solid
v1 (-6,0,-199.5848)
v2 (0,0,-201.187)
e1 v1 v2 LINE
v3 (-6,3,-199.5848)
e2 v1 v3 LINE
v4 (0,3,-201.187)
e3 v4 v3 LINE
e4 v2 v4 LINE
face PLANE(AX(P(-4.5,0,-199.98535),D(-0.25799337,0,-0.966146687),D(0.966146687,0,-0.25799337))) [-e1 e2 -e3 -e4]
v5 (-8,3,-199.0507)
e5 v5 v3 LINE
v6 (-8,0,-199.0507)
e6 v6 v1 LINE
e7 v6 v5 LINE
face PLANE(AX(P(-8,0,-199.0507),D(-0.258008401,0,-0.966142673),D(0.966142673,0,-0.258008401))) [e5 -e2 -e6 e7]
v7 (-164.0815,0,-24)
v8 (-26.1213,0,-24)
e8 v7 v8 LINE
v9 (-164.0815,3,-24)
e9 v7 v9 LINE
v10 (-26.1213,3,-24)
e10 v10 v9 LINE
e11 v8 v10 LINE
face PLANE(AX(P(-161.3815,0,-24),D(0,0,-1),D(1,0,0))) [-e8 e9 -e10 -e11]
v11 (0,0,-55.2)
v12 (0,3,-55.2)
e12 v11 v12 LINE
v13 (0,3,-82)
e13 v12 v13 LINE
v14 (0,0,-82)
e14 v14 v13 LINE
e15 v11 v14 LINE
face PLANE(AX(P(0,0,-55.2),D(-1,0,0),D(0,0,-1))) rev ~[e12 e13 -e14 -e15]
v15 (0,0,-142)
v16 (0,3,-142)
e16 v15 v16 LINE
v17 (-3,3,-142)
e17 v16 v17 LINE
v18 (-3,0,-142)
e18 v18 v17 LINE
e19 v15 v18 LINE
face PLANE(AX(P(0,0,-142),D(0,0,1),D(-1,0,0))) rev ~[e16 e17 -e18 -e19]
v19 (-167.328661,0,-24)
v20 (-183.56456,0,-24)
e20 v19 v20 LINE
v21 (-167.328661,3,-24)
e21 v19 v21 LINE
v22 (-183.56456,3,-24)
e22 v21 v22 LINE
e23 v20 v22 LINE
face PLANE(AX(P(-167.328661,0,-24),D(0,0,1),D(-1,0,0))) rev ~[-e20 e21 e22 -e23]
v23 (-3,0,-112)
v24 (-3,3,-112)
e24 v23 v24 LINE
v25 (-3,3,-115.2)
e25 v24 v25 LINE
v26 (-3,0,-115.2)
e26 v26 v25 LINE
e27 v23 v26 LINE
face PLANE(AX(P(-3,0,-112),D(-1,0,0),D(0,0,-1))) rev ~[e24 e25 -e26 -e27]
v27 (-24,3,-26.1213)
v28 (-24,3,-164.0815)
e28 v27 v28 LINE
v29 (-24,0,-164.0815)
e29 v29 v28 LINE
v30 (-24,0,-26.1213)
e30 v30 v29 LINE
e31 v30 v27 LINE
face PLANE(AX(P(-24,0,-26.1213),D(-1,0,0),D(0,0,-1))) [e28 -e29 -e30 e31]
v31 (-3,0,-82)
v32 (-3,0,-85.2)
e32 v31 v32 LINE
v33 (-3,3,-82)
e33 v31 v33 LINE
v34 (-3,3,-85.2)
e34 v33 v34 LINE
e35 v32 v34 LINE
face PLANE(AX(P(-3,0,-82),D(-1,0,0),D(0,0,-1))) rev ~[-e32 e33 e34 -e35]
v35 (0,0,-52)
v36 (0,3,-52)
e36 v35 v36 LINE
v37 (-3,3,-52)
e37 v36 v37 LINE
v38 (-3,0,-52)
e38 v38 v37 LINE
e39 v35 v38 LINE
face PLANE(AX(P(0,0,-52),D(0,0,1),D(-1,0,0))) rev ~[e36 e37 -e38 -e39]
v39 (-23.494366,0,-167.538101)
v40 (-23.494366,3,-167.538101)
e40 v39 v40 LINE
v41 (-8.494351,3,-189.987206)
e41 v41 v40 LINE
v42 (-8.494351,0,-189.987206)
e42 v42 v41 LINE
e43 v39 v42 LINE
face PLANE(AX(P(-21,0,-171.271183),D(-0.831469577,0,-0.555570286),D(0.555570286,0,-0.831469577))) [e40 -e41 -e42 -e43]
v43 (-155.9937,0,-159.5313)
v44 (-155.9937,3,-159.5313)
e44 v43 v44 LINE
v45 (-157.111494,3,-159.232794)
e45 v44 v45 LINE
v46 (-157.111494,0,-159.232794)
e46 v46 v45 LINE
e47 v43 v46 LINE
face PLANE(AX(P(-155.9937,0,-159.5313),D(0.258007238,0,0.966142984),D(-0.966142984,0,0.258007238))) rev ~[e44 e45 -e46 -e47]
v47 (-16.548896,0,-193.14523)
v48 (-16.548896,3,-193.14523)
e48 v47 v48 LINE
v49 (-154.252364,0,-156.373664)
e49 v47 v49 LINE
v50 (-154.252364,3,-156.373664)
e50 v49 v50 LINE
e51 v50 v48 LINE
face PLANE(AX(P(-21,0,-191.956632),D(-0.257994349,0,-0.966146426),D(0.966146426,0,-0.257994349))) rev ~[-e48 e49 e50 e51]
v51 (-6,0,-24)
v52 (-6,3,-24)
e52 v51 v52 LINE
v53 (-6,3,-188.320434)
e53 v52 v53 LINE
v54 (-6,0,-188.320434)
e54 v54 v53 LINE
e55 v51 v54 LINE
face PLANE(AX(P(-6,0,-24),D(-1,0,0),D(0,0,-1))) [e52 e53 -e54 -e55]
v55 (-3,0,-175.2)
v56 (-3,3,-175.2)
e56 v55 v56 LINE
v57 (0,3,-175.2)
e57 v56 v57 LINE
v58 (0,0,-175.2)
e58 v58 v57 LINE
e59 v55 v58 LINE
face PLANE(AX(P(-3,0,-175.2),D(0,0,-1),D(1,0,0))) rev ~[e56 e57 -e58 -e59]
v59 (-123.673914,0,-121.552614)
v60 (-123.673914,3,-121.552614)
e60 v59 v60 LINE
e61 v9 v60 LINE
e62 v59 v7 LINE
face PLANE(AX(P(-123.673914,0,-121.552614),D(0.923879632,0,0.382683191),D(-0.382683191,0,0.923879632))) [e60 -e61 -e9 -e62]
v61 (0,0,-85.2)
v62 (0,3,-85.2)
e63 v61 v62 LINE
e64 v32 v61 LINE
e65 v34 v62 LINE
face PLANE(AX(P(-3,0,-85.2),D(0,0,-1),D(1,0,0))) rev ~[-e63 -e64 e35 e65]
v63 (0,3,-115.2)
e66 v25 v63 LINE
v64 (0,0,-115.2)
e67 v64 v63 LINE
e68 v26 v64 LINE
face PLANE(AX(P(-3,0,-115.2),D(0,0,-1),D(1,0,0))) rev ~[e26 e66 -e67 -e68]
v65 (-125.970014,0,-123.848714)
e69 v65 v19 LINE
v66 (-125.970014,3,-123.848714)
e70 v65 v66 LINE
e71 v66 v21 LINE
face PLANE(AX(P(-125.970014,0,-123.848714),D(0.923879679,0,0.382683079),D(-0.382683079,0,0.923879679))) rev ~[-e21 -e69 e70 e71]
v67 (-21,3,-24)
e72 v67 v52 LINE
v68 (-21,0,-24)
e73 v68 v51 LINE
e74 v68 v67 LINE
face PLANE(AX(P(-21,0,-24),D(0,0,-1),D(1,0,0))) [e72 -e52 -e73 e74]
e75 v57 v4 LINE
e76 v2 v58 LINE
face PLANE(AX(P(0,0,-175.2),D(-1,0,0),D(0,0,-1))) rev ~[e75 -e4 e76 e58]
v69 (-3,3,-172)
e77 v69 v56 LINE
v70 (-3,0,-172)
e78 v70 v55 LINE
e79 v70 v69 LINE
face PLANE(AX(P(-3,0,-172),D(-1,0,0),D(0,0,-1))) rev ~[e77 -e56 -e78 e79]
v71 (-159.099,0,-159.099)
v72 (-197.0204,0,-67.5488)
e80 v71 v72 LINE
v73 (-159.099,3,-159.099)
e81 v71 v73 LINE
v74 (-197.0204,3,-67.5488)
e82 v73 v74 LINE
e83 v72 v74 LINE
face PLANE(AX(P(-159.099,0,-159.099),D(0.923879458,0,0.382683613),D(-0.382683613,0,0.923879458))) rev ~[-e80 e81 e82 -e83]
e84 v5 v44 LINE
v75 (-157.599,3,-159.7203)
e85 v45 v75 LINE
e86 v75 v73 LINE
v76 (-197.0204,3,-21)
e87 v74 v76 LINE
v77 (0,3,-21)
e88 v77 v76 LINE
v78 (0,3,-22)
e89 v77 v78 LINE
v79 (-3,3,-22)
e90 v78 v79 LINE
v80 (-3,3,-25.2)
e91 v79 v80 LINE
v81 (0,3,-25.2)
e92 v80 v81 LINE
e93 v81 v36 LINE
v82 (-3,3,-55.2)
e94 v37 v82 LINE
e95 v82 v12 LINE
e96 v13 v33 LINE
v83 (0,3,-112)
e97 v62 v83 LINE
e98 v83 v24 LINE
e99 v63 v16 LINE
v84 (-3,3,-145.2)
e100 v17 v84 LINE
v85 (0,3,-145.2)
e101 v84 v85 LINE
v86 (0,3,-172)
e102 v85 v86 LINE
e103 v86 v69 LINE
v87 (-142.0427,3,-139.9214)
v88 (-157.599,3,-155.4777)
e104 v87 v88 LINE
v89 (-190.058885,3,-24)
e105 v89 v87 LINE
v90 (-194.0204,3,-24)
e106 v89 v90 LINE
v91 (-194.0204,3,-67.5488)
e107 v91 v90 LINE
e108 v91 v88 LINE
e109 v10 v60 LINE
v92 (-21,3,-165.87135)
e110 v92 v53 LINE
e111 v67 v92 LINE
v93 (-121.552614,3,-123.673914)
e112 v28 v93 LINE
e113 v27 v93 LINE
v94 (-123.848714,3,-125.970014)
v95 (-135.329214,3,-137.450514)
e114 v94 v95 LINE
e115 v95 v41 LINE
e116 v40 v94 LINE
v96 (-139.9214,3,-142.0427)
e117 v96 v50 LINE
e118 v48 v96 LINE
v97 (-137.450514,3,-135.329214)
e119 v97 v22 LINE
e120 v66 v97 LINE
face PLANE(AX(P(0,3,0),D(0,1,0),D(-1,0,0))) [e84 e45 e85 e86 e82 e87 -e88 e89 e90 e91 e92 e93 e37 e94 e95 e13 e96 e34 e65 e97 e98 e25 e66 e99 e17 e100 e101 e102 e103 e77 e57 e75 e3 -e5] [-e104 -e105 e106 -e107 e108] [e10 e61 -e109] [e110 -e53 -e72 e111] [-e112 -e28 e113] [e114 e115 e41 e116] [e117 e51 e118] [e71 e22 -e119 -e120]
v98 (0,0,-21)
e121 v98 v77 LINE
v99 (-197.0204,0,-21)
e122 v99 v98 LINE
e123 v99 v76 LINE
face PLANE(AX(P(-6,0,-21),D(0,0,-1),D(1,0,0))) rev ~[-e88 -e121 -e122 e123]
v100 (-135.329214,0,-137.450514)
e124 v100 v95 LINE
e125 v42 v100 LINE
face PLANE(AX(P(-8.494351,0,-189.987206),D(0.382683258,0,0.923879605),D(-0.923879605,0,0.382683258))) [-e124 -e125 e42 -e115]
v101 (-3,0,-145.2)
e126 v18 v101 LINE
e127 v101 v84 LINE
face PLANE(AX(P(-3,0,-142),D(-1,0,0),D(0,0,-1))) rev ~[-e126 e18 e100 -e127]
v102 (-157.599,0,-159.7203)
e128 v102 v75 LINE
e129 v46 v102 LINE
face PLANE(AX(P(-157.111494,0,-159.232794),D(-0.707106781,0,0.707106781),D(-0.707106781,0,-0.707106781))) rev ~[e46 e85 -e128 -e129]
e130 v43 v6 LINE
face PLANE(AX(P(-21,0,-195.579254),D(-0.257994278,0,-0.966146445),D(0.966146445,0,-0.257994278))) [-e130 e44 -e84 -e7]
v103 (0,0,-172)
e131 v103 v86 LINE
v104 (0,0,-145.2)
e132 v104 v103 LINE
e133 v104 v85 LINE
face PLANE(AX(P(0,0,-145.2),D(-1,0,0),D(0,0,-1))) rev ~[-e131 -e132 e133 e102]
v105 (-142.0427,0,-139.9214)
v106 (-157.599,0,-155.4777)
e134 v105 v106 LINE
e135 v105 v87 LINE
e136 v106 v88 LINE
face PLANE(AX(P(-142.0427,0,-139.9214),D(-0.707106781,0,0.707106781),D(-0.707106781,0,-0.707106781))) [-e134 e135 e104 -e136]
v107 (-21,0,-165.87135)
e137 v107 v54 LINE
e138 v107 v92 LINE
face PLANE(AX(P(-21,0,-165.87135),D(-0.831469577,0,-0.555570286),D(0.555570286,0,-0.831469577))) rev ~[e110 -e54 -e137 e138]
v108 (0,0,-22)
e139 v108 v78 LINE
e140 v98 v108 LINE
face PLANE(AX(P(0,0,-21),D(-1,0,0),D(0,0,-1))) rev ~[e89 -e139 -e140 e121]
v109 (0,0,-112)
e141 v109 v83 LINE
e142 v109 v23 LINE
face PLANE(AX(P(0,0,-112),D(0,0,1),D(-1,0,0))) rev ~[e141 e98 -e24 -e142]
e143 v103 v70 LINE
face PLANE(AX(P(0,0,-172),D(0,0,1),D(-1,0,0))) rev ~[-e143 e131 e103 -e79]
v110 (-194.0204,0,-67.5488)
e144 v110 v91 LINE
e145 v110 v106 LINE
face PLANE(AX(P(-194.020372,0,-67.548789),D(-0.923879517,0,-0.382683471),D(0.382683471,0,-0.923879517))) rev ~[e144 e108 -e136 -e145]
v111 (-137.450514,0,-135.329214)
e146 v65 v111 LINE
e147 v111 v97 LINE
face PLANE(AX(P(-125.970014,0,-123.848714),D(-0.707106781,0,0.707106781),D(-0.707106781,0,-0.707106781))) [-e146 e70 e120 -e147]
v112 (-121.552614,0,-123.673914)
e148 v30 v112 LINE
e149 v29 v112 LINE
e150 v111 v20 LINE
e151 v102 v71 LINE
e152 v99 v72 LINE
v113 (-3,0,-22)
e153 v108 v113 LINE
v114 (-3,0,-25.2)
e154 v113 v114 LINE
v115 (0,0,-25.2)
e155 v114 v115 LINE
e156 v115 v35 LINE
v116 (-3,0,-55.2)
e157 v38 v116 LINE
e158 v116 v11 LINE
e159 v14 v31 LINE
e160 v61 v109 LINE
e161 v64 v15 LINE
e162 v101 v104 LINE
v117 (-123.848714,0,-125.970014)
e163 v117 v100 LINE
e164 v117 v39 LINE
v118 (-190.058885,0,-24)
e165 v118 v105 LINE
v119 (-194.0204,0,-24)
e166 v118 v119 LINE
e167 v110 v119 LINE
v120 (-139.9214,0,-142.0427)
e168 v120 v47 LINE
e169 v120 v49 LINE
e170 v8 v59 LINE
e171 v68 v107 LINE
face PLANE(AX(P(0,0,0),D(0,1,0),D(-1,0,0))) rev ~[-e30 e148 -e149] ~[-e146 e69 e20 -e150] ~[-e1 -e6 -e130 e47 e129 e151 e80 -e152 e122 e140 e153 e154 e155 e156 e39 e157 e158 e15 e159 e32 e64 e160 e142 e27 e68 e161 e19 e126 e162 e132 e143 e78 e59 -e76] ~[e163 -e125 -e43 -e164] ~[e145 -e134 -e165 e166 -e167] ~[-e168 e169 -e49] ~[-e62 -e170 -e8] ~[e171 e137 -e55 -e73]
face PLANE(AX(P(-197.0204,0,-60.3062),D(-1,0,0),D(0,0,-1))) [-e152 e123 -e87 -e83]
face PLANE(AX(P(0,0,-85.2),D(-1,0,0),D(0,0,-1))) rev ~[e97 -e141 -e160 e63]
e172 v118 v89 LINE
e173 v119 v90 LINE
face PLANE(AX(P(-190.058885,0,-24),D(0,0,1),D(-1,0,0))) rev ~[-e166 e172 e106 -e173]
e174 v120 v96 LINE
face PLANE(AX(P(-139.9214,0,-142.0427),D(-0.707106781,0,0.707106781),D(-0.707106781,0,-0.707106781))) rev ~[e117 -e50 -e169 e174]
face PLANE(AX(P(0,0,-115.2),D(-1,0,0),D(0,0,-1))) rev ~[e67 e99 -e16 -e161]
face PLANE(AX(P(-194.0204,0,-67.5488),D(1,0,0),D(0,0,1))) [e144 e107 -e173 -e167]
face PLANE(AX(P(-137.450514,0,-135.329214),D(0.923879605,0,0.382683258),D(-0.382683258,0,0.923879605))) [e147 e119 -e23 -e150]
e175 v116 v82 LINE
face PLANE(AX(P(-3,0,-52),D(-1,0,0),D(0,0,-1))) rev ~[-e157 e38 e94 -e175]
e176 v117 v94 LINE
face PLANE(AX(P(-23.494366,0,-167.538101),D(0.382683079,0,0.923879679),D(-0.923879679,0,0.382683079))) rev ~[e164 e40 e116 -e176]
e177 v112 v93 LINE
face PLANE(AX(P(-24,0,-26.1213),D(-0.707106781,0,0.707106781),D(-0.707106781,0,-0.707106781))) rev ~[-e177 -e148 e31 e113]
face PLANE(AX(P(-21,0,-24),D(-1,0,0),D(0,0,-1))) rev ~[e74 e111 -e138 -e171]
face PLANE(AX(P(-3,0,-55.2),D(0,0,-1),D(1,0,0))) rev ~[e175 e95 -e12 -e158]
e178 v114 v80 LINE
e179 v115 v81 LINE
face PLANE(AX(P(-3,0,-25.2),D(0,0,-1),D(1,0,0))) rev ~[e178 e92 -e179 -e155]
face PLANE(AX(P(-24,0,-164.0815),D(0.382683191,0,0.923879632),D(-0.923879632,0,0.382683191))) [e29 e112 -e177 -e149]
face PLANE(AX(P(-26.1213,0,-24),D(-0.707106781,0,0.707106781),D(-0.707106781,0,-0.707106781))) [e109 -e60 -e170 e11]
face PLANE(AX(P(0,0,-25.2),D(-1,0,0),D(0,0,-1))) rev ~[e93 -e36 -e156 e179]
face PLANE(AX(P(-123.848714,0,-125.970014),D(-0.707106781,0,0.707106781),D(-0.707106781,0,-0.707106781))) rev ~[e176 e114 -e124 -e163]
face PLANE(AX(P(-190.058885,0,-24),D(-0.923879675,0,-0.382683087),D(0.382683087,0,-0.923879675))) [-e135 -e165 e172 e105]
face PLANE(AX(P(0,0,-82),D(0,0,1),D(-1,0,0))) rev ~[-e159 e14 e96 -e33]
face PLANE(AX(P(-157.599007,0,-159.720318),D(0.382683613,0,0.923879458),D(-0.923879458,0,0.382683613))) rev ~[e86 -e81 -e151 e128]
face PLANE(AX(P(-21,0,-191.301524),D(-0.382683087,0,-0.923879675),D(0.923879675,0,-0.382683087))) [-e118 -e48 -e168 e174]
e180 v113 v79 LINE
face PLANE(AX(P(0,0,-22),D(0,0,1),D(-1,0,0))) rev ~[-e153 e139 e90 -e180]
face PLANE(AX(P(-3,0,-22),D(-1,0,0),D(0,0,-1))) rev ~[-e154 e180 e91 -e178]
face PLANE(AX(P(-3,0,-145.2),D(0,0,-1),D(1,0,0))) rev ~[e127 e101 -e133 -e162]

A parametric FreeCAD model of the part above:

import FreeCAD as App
import Part
import Sketcher
from FreeCAD import Vector


def add_polygon(sketch, points):
    """Adds a closed chain of lines whose ends are joined by coincident constraints."""
    first, n = sketch.GeometryCount, len(points)
    for a, b in zip(points, points[1:] + points[:1]):
        sketch.addGeometry(Part.LineSegment(App.Vector(*a, 0), App.Vector(*b, 0)), False)
    for i in range(n):
        sketch.addConstraint(Sketcher.Constraint("Coincident", first + i, 2, first + (i + 1) % n, 1))

doc = App.newDocument("Part")
params = doc.addObject("Spreadsheet::Sheet", "Params")
for row, (alias, value) in enumerate([
    ("sketch1_width", "3 mm"),
    ("sketch1_width2", "3 mm"),
    ("sketch1_width3", "3 mm"),
    ("sketch1_width4", "3 mm"),
    ("sketch1_width5", "3 mm"),
    ("pad1_length", "3 mm"),
], start=1):
    params.set(f"A{row}", alias)
    params.set(f"B{row}", "=" + value)
    params.setAlias(f"B{row}", alias)

body = doc.addObject("PartDesign::Body", "Body")

sketch1 = body.newObject("Sketcher::SketchObject", "Sketch")
sketch1.AttachmentSupport = (doc.getObject("XZ_Plane"), [""])
sketch1.MapMode = "FlatFace"
add_polygon(sketch1, [(0, -21), (0, -22), (-3, -22), (-3, -25.2), (0, -25.2), (0, -52), (-3, -52), (-3, -55.2), (0, -55.2), (0, -82), (-3, -82), (-3, -85.2), (0, -85.2), (0, -112), (-3, -112), (-3, -115.2), (0, -115.2), (0, -142), (-3, -142), (-3, -145.2), (0, -145.2), (0, -172), (-3, -172), (-3, -175.2), (0, -175.2), (0, -201.187), (-6, -199.5848), (-8, -199.0507), (-155.9937, -159.5313), (-157.111494, -159.232794), (-157.599007, -159.720318), (-159.099, -159.099), (-197.0204, -67.5488), (-197.0204, -21)])
add_polygon(sketch1, [(-6, -188.320434), (-6, -24), (-21, -24), (-21, -165.87135)])
add_polygon(sketch1, [(-8.494351, -189.987206), (-23.494366, -167.538101), (-123.848714, -125.970014), (-135.329214, -137.450514)])
add_polygon(sketch1, [(-16.548896, -193.14523), (-139.9214, -142.0427), (-154.252364, -156.373664)])
add_polygon(sketch1, [(-24, -164.0815), (-24, -26.1213), (-121.552614, -123.673914)])
add_polygon(sketch1, [(-26.1213, -24), (-164.0815, -24), (-123.673914, -121.552614)])
add_polygon(sketch1, [(-137.450514, -135.329214), (-125.970014, -123.848714), (-167.328661, -24), (-183.56456, -24)])
add_polygon(sketch1, [(-142.042717, -139.921407), (-190.058885, -24), (-194.0204, -24), (-194.020372, -67.548789), (-157.599, -155.4777)])
sketch1.addConstraint(Sketcher.Constraint("Vertical", 0))
sketch1.addConstraint(Sketcher.Constraint("Horizontal", 1))
sketch1.addConstraint(Sketcher.Constraint("Vertical", 2))
sketch1.addConstraint(Sketcher.Constraint("Horizontal", 3))
sketch1.addConstraint(Sketcher.Constraint("Vertical", 4))
sketch1.addConstraint(Sketcher.Constraint("Horizontal", 5))
sketch1.addConstraint(Sketcher.Constraint("Vertical", 6))
sketch1.addConstraint(Sketcher.Constraint("Horizontal", 7))
sketch1.addConstraint(Sketcher.Constraint("Vertical", 8))
sketch1.addConstraint(Sketcher.Constraint("Horizontal", 9))
sketch1.addConstraint(Sketcher.Constraint("Vertical", 10))
sketch1.addConstraint(Sketcher.Constraint("Horizontal", 11))
sketch1.addConstraint(Sketcher.Constraint("Vertical", 12))
sketch1.addConstraint(Sketcher.Constraint("Horizontal", 13))
sketch1.addConstraint(Sketcher.Constraint("Vertical", 14))
sketch1.addConstraint(Sketcher.Constraint("Horizontal", 15))
sketch1.addConstraint(Sketcher.Constraint("Vertical", 16))
sketch1.addConstraint(Sketcher.Constraint("Horizontal", 17))
sketch1.addConstraint(Sketcher.Constraint("Vertical", 18))
sketch1.addConstraint(Sketcher.Constraint("Horizontal", 19))
sketch1.addConstraint(Sketcher.Constraint("Vertical", 20))
sketch1.addConstraint(Sketcher.Constraint("Horizontal", 21))
sketch1.addConstraint(Sketcher.Constraint("Vertical", 22))
sketch1.addConstraint(Sketcher.Constraint("Horizontal", 23))
sketch1.addConstraint(Sketcher.Constraint("Vertical", 24))
sketch1.addConstraint(Sketcher.Constraint("Vertical", 32))
sketch1.addConstraint(Sketcher.Constraint("Horizontal", 33))
sketch1.addConstraint(Sketcher.Constraint("Vertical", 34))
sketch1.addConstraint(Sketcher.Constraint("Horizontal", 35))
sketch1.addConstraint(Sketcher.Constraint("Vertical", 36))
sketch1.addConstraint(Sketcher.Constraint("Vertical", 45))
sketch1.addConstraint(Sketcher.Constraint("Horizontal", 48))
sketch1.addConstraint(Sketcher.Constraint("Horizontal", 53))
sketch1.addConstraint(Sketcher.Constraint("Horizontal", 56))
sketch1.addConstraint(Sketcher.Constraint("Vertical", 57))
sketch1.addConstraint(Sketcher.Constraint("PointOnObject", 0, 2, -2))
sketch1.addConstraint(Sketcher.Constraint("PointOnObject", 3, 2, -2))
sketch1.addConstraint(Sketcher.Constraint("PointOnObject", 7, 2, -2))
sketch1.addConstraint(Sketcher.Constraint("PointOnObject", 11, 2, -2))
sketch1.addConstraint(Sketcher.Constraint("PointOnObject", 15, 2, -2))
sketch1.addConstraint(Sketcher.Constraint("PointOnObject", 19, 2, -2))
sketch1.addConstraint(Sketcher.Constraint("PointOnObject", 23, 2, -2))
sketch1.addConstraint(Sketcher.Constraint("DistanceX", 1, 2, 1, 1, 3.0))
sketch1.addConstraint(Sketcher.Constraint("DistanceX", 5, 2, 5, 1, 3.0))
sketch1.addConstraint(Sketcher.Constraint("DistanceX", 9, 2, 9, 1, 3.0))
sketch1.addConstraint(Sketcher.Constraint("DistanceX", 13, 2, 13, 1, 3.0))
sketch1.addConstraint(Sketcher.Constraint("DistanceX", 17, 2, 17, 1, 3.0))
sketch1.addConstraint(Sketcher.Constraint("DistanceX", 21, 2, 21, 1, 3.0))
sketch1.addConstraint(Sketcher.Constraint("DistanceX", 35, 2, 35, 1, 15.0))
sketch1.addConstraint(Sketcher.Constraint("Distance", 59, 22.0))
sketch1.addConstraint(Sketcher.Constraint("DistanceY", 2, 2, 2, 1, 3.2))
sketch1.addConstraint(Sketcher.Constraint("DistanceY", 6, 2, 6, 1, 3.2))
sketch1.addConstraint(Sketcher.Constraint("DistanceY", 10, 2, 10, 1, 3.2))
sketch1.addConstraint(Sketcher.Constraint("DistanceY", 14, 2, 14, 1, 3.2))
sketch1.addConstraint(Sketcher.Constraint("DistanceY", 18, 2, 18, 1, 3.2))
sketch1.addConstraint(Sketcher.Constraint("DistanceY", 22, 2, 22, 1, 3.2))
sketch1.addConstraint(Sketcher.Constraint("DistanceY", 0, 2, -1, 1, 22.0))
sketch1.addConstraint(Sketcher.Constraint("DistanceX", 25, 2, -1, 1, 6.0))
sketch1.addConstraint(Sketcher.Constraint("DistanceX", 34, 2, -1, 1, 6.0))
sketch1.addConstraint(Sketcher.Constraint("DistanceY", 4, 2, 0, 2, 30.0))
sketch1.addConstraint(Sketcher.Constraint("DistanceY", 8, 2, 4, 2, 30.0))
sketch1.addConstraint(Sketcher.Constraint("DistanceY", 12, 2, 8, 2, 30.0))
sketch1.addConstraint(Sketcher.Constraint("DistanceY", 16, 2, 12, 2, 30.0))
sketch1.addConstraint(Sketcher.Constraint("DistanceY", 20, 2, 16, 2, 30.0))
sketch1.addConstraint(Sketcher.Constraint("DistanceX", 26, 2, 25, 2, 2.0))
sketch1.addConstraint(Sketcher.Constraint("DistanceY", 34, 2, 1, 2, 2.0))
sketch1.addConstraint(Sketcher.Constraint("DistanceY", 34, 2, 33, 2, 3.0))
sketch1.addConstraint(Sketcher.Constraint("DistanceX", 45, 2, 35, 2, 3.0))
sketch1.addConstraint(Sketcher.Constraint("DistanceY", 48, 2, 32, 2, 3.0))
sketch1.addConstraint(Sketcher.Constraint("DistanceY", 52, 2, 32, 2, 3.0))
sketch1.addConstraint(Sketcher.Constraint("DistanceY", 55, 2, 32, 2, 3.0))
sketch1.addConstraint(Sketcher.Constraint("DistanceX", 32, 2, 56, 2, 3.0))
sketch1.addConstraint(Sketcher.Constraint("DistanceX", 30, 2, 29, 2, 1.5))
sketch1.addConstraint(Sketcher.Constraint("DistanceX", 30, 2, 58, 2, 1.5))
sketch1.addConstraint(Sketcher.Constraint("Distance", 26, 2.07))
sketch1.addConstraint(Sketcher.Constraint("DistanceX", 53, 2, 53, 1, 16.236))
sketch1.addConstraint(Sketcher.Constraint("DistanceY", 24, 2, 24, 1, 25.987))
sketch1.addConstraint(Sketcher.Constraint("DistanceY", 39, 2, -1, 1, 125.97))
sketch1.addConstraint(Sketcher.Constraint("DistanceX", 51, 2, -1, 1, 125.97))
sketch1.addConstraint(Sketcher.Constraint("DistanceX", 28, 2, 42, 2, 17.19))
sketch1.addConstraint(Sketcher.Constraint("DistanceY", 28, 2, 42, 2, 17.19))
sketch1.addConstraint(Sketcher.Constraint("DistanceY", 42, 2, 49, 2, 20.49))
sketch1.addConstraint(Sketcher.Constraint("Distance", 28, 1.157))
sketch1.addConstraint(Sketcher.Constraint("Distance", 41, 137.285))
sketch1.addConstraint(Sketcher.Constraint("Distance", 43, 20.267))
sketch1.addConstraint(Sketcher.Constraint("DistanceX", 33, 1, 33, 2, 197.0204))
sketch1.addConstraint(Sketcher.Constraint("DistanceX", 48, 2, 48, 1, 137.9602))
sketch1.addConstraint(Sketcher.Constraint("DistanceX", 56, 2, 56, 1, 3.9615))
sketch1.addConstraint(Sketcher.Constraint("DistanceY", 32, 1, 32, 2, 46.5488))
sketch1.addConstraint(Sketcher.Constraint("DistanceY", 34, 1, 34, 2, 164.3204))
sketch1.addConstraint(Sketcher.Constraint("DistanceY", 36, 2, 36, 1, 141.8714))
sketch1.addConstraint(Sketcher.Constraint("DistanceY", 45, 1, 45, 2, 137.9602))
sketch1.addConstraint(Sketcher.Constraint("DistanceY", 57, 2, 57, 1, 43.5488))
sketch1.addConstraint(Sketcher.Constraint("DistanceX", 29, 2, -1, 1, 157.599))
sketch1.addConstraint(Sketcher.Constraint("DistanceY", 30, 2, -1, 1, 159.099))
sketch1.addConstraint(Sketcher.Constraint("DistanceY", 38, 2, -1, 1, 167.538))
sketch1.addConstraint(Sketcher.Constraint("DistanceX", 44, 2, -1, 1, 16.549))
sketch1.addConstraint(Sketcher.Constraint("DistanceY", 46, 2, -1, 1, 123.674))
sketch1.addConstraint(Sketcher.Constraint("DistanceX", 49, 2, -1, 1, 123.674))
sketch1.addConstraint(Sketcher.Constraint("DistanceY", 26, 2, 28, 2, 39.818))
sketch1.addConstraint(Sketcher.Constraint("DistanceY", 29, 2, 27, 2, 0.189))
sketch1.addConstraint(Sketcher.Constraint("DistanceY", 28, 2, 31, 2, 91.684))
sketch1.addConstraint(Sketcher.Constraint("DistanceX", 32, 2, 28, 2, 39.909))
sketch1.addConstraint(Sketcher.Constraint("DistanceX", 27, 2, 39, 2, 32.145))
sketch1.addConstraint(Sketcher.Constraint("DistanceX", 43, 2, 42, 2, 14.331))
sketch1.addConstraint(Sketcher.Constraint("DistanceY", 44, 2, 41, 2, 3.158))
sketch1.addConstraint(Sketcher.Constraint("DistanceX", 39, 2, 46, 2, 2.296))
sketch1.addConstraint(Sketcher.Constraint("DistanceX", 32, 2, 48, 2, 32.939))
sketch1.addConstraint(Sketcher.Constraint("DistanceX", 48, 2, 46, 2, 42.529))
sketch1.addConstraint(Sketcher.Constraint("DistanceY", 40, 2, 49, 2, 15.898))
sketch1.addConstraint(Sketcher.Constraint("DistanceY", 51, 2, 49, 2, 2.296))
sketch1.addConstraint(Sketcher.Constraint("DistanceX", 53, 2, 48, 2, 19.483))
sketch1.addConstraint(Sketcher.Constraint("DistanceX", 42, 2, 54, 2, 2.471))
sketch1.addConstraint(Sketcher.Constraint("DistanceY", 43, 2, 58, 2, 0.896))
sketch1.addConstraint(Sketcher.Constraint("DistanceY", 59, 2, 40, 2, 2.471))
sketch1.addConstraint(Sketcher.Constraint("Distance", 38, 26.9993))
sketch1.addConstraint(Sketcher.Constraint("Distance", 39, 108.6227))
sketch1.addConstraint(Sketcher.Constraint("Distance", 40, 16.2359))
sketch1.addConstraint(Sketcher.Constraint("Distance", 46, 137.9602))
sketch1.addConstraint(Sketcher.Constraint("Distance", 51, 16.2359))
sketch1.setExpression("Constraints[102]", "Params.sketch1_width")
sketch1.setExpression("Constraints[103]", "Params.sketch1_width2")
sketch1.setExpression("Constraints[104]", "Params.sketch1_width3")
sketch1.setExpression("Constraints[105]", "Params.sketch1_width4")
sketch1.setExpression("Constraints[106]", "Params.sketch1_width5")
pad1 = body.newObject("PartDesign::Pad", "Pad")
pad1.Profile = sketch1
pad1.setExpression("Length", "Params.pad1_length")
pad1.Reversed = True

doc.recompute()
